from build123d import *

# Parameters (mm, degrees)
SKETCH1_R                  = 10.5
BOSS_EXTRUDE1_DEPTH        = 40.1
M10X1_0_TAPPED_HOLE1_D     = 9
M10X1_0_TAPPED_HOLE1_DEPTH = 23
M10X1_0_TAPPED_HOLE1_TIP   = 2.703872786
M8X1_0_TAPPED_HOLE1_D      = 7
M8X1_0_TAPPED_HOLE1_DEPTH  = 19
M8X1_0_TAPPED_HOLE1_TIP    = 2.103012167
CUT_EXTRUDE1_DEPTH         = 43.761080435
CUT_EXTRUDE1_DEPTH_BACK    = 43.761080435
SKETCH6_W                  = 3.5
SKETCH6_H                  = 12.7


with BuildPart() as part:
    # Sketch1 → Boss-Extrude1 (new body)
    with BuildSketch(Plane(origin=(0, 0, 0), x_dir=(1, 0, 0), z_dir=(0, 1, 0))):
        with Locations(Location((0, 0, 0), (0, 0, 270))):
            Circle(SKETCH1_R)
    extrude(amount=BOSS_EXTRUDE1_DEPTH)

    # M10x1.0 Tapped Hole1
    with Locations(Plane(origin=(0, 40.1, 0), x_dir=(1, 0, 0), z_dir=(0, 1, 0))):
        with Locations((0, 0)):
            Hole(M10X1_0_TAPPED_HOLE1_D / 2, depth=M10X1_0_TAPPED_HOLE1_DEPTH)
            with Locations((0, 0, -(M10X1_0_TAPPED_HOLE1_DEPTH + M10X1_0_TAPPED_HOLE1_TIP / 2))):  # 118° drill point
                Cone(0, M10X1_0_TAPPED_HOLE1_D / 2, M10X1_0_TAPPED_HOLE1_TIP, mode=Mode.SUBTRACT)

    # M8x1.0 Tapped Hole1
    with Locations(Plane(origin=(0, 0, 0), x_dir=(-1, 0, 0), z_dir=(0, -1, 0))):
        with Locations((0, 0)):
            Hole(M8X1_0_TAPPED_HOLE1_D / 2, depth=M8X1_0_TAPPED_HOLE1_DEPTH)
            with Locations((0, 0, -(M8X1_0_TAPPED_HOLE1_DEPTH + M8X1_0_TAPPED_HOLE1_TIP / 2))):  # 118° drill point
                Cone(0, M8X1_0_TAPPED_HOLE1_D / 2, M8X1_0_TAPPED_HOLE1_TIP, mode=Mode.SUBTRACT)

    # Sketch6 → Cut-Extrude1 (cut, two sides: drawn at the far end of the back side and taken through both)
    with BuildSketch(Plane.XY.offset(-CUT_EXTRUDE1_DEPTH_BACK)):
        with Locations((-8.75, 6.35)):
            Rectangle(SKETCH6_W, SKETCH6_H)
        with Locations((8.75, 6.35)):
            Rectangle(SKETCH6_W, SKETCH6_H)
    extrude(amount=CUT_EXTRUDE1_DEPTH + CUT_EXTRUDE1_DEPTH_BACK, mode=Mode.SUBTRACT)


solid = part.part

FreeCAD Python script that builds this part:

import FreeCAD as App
import Part
import Sketcher

V = App.Vector
Q = App.Units.Quantity


def add_polygon(sketch, points):
    """Adds a closed chain of lines whose ends are joined by coincident constraints."""
    first, n = sketch.GeometryCount, len(points)
    for a, b in zip(points, points[1:] + points[:1]):
        sketch.addGeometry(Part.LineSegment(App.Vector(*a, 0), App.Vector(*b, 0)), False)
    for i in range(n):
        sketch.addConstraint(Sketcher.Constraint("Coincident", first + i, 2, first + (i + 1) % n, 1))

doc = App.newDocument("Part")
body = doc.addObject("PartDesign::Body", "Body")

# Sketch on XZ plane
sketch1 = body.newObject("Sketcher::SketchObject", "Sketch")
sketch1.AttachmentSupport = (doc.getObject("XZ_Plane"), [""])
sketch1.MapMode = "FlatFace"
sketch1.addGeometry(Part.Circle(V(0, 0, 0), V(0, 0, 1), 10.5), False)
sketch1.addConstraint(Sketcher.Constraint("Coincident", 0, 3, -1, 1))
sketch1.addConstraint(Sketcher.Constraint("Diameter", 0, Q("21 mm")))
pad1 = body.newObject("PartDesign::Pad", "Pad")
pad1.Profile = sketch1
pad1.Length = 40.1
pad1.Reversed = True

# Sketch on XZ plane
sketch2 = body.newObject("Sketcher::SketchObject", "Sketch001")
sketch2.AttachmentSupport = (doc.getObject("XZ_Plane"), [""])
sketch2.MapMode = "FlatFace"
sketch2.AttachmentOffset = App.Placement(V(0, 0, -40.1), App.Rotation())
sketch2.addGeometry(Part.Circle(V(0, 0, 0), V(0, 0, 1), 4.5), False)
sketch2.addConstraint(Sketcher.Constraint("Coincident", 0, 3, -1, 1))
sketch2.addConstraint(Sketcher.Constraint("Diameter", 0, Q("9 mm")))
doc.recompute()
hole = body.newObject("PartDesign::Hole", "Hole")
hole.Profile = sketch2
hole.ThreadType = "None"
hole.Diameter = 9
hole.DepthType = "Dimension"
hole.Depth = 23
hole.DrillPoint = "Angled"
hole.DrillPointAngle = 118
hole.Reversed = True

# Sketch on XZ plane
sketch3 = body.newObject("Sketcher::SketchObject", "Sketch002")
sketch3.AttachmentSupport = (doc.getObject("XZ_Plane"), [""])
sketch3.MapMode = "FlatFace"
sketch3.addGeometry(Part.Circle(V(0, 0, 0), V(0, 0, 1), 3.5), False)
sketch3.addConstraint(Sketcher.Constraint("Coincident", 0, 3, -1, 1))
sketch3.addConstraint(Sketcher.Constraint("Diameter", 0, Q("7 mm")))
doc.recompute()
hole2 = body.newObject("PartDesign::Hole", "Hole001")
hole2.Profile = sketch3
hole2.ThreadType = "None"
hole2.Diameter = 7
hole2.DepthType = "Dimension"
hole2.Depth = 19
hole2.DrillPoint = "Angled"
hole2.DrillPointAngle = 118

# Sketch on XY plane
sketch4 = body.newObject("Sketcher::SketchObject", "Sketch003")
sketch4.AttachmentSupport = (doc.getObject("XY_Plane"), [""])
sketch4.MapMode = "FlatFace"
add_polygon(sketch4, [(-10.5, 12.7), (-10.5, 0), (-7, 0), (-7, 12.7)])  # lines 0-3
add_polygon(sketch4, [(7, 12.7), (7, 0), (10.5, 0), (10.5, 12.7)])  # lines 4-7
sketch4.addConstraint(Sketcher.Constraint("Vertical", 0))
sketch4.addConstraint(Sketcher.Constraint("Horizontal", 1))
sketch4.addConstraint(Sketcher.Constraint("Vertical", 2))
sketch4.addConstraint(Sketcher.Constraint("Horizontal", 3))
sketch4.addConstraint(Sketcher.Constraint("Vertical", 4))
sketch4.addConstraint(Sketcher.Constraint("Horizontal", 5))
sketch4.addConstraint(Sketcher.Constraint("Vertical", 6))
sketch4.addConstraint(Sketcher.Constraint("Horizontal", 7))
sketch4.addConstraint(Sketcher.Constraint("Symmetric", 1, 2, 4, 2, -1, 1))
sketch4.addConstraint(Sketcher.Constraint("Symmetric", 0, 2, 5, 2, -2))
sketch4.addConstraint(Sketcher.Constraint("Horizontal", 3, 2, 6, 2))
sketch4.addConstraint(Sketcher.Constraint("DistanceX", 1, 1, 1, 2, Q("3.5 mm")))
sketch4.addConstraint(Sketcher.Constraint("DistanceY", 0, 2, 0, 1, Q("12.7 mm")))
sketch4.addConstraint(Sketcher.Constraint("DistanceX", 1, 2, -1, 1, Q("7 mm")))
pocket1 = body.newObject("PartDesign::Pocket", "Pocket")
pocket1.Profile = sketch4
pocket1.Type = "ThroughAll"
pocket1.Midplane = True

doc.recompute()
